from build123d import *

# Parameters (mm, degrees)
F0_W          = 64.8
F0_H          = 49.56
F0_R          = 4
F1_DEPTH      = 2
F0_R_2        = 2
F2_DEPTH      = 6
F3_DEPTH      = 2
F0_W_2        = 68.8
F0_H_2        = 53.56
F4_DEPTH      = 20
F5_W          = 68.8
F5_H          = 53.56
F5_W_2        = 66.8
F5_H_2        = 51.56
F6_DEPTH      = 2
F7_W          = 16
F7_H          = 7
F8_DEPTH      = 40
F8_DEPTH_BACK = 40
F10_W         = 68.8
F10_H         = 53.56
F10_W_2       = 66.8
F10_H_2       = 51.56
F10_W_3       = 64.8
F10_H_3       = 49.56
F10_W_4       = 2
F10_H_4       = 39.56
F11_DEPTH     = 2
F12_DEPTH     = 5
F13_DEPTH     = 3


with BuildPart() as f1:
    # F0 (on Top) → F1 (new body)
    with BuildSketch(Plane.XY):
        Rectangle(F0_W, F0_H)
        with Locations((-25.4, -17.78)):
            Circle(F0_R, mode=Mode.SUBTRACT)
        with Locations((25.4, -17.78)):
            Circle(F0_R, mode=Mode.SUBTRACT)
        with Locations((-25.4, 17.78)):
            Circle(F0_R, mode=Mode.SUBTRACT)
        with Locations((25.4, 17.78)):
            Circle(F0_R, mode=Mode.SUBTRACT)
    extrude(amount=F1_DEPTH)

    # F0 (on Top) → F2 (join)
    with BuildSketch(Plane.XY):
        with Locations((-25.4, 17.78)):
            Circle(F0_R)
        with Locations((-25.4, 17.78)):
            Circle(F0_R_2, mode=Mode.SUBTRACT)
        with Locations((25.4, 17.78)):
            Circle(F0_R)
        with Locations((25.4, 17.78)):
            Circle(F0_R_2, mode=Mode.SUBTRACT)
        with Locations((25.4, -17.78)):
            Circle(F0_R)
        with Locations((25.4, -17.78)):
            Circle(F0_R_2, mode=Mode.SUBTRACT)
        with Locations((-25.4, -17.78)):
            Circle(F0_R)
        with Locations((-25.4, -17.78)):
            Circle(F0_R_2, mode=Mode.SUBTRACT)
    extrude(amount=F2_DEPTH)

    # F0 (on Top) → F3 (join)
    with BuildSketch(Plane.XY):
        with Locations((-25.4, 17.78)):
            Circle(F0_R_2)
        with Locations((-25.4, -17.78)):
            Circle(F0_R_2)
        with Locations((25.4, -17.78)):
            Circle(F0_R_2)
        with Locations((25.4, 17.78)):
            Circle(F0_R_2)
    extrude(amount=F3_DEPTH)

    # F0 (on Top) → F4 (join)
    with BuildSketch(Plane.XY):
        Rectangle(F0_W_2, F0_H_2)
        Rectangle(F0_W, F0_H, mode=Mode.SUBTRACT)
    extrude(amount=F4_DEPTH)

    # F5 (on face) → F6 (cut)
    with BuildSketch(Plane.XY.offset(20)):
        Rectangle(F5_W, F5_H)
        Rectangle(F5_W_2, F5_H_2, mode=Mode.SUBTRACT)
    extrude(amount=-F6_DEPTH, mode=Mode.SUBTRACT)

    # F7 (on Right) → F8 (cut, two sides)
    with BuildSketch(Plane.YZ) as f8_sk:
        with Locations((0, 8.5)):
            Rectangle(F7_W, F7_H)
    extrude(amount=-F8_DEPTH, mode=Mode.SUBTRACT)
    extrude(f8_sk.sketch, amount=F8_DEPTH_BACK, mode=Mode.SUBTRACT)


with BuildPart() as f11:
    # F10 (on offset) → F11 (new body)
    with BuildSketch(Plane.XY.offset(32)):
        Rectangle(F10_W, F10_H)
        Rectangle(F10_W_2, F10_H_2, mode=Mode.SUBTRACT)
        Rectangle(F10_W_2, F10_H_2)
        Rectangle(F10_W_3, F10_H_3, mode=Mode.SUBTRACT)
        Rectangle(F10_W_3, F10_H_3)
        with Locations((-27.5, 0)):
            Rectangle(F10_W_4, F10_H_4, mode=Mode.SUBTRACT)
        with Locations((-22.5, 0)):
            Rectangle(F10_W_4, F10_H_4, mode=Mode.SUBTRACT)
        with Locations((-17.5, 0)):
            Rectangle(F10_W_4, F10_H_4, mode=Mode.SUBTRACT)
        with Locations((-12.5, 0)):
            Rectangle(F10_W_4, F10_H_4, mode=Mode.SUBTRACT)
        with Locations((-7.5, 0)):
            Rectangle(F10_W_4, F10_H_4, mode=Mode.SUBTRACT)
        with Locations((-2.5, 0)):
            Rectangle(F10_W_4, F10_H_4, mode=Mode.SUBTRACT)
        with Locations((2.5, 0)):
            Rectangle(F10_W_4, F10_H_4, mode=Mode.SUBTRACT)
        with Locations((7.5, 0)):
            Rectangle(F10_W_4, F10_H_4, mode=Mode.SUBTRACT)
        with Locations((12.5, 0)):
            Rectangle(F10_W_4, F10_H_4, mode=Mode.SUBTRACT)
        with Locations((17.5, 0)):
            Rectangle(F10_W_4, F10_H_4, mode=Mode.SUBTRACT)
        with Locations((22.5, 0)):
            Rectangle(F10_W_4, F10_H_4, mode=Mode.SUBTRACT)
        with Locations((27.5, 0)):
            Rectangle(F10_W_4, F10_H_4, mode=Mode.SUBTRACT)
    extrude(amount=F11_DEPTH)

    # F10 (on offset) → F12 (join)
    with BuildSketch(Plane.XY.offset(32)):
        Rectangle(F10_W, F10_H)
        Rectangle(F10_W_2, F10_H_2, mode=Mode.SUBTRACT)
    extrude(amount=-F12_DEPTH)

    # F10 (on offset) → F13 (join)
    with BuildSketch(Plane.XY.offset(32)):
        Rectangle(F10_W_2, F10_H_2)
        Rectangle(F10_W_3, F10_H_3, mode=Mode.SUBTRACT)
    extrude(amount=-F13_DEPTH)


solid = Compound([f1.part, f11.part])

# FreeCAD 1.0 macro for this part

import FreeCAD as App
import Part
import Sketcher
from FreeCAD import Vector
Q = App.Units.Quantity


def add_polygon(sketch, points):
    """Adds a closed chain of lines whose ends are joined by coincident constraints."""
    first, n = sketch.GeometryCount, len(points)
    for a, b in zip(points, points[1:] + points[:1]):
        sketch.addGeometry(Part.LineSegment(App.Vector(*a, 0), App.Vector(*b, 0)), False)
    for i in range(n):
        sketch.addConstraint(Sketcher.Constraint("Coincident", first + i, 2, first + (i + 1) % n, 1))

doc = App.newDocument("Part")
body = doc.addObject("PartDesign::Body", "Body")

# Sketch on XY plane
sketch1 = doc.addObject("Sketcher::SketchObject", "Sketch")
body.addObject(sketch1)
sketch1.AttachmentSupport = (doc.XY_Plane, [""])
sketch1.MapMode = "FlatFace"
add_polygon(sketch1, [(-32.4, 24.8), (-32.4, -24.8), (32.4, -24.8), (32.4, 24.8)])  # lines 0-3
sketch1.addGeometry(Part.Circle(Vector(-25.4, -17.8, 0), Vector(0, 0, 1), 4), False)  # 4
sketch1.addGeometry(Part.Circle(Vector(25.4, -17.8, 0), Vector(0, 0, 1), 4), False)  # 5
sketch1.addGeometry(Part.Circle(Vector(-25.4, 17.8, 0), Vector(0, 0, 1), 4), False)  # 6
sketch1.addGeometry(Part.Circle(Vector(25.4, 17.8, 0), Vector(0, 0, 1), 4), False)  # 7
sketch1.addConstraint(Sketcher.Constraint("Vertical", 0))
sketch1.addConstraint(Sketcher.Constraint("Horizontal", 1))
sketch1.addConstraint(Sketcher.Constraint("Vertical", 2))
sketch1.addConstraint(Sketcher.Constraint("Horizontal", 3))
sketch1.addConstraint(Sketcher.Constraint("Equal", 4, 5))
sketch1.addConstraint(Sketcher.Constraint("Equal", 5, 6))
sketch1.addConstraint(Sketcher.Constraint("Equal", 6, 7))
sketch1.addConstraint(Sketcher.Constraint("Symmetric", 5, 3, 6, 3, -1, 1))
sketch1.addConstraint(Sketcher.Constraint("Symmetric", 4, 3, 7, 3, -1, 1))
sketch1.addConstraint(Sketcher.Constraint("Symmetric", 0, 2, 2, 2, -1, 1))
sketch1.addConstraint(Sketcher.Constraint("Symmetric", 4, 3, 5, 3, -2))
sketch1.addConstraint(Sketcher.Constraint("Diameter", 4, Q("8 mm")))
sketch1.addConstraint(Sketcher.Constraint("DistanceX", 1, 1, 1, 2, Q("64.8 mm")))
sketch1.addConstraint(Sketcher.Constraint("DistanceX", 0, 2, 4, 3, Q("7 mm")))
sketch1.addConstraint(Sketcher.Constraint("DistanceY", 0, 2, 4, 3, Q("7 mm")))
sketch1.addConstraint(Sketcher.Constraint("DistanceY", 0, 2, 0, 1, Q("49.56 mm")))
pad1 = doc.addObject("PartDesign::Pad", "Pad")
body.addObject(pad1)
pad1.Profile = sketch1
pad1.Length = 2

# Sketch on XY plane
sketch2 = doc.addObject("Sketcher::SketchObject", "Sketch001")
body.addObject(sketch2)
sketch2.AttachmentSupport = (doc.XY_Plane, [""])
sketch2.MapMode = "FlatFace"
sketch2.addGeometry(Part.Circle(Vector(-25.4, 17.8, 0), Vector(0, 0, 1), 4), False)
sketch2.addGeometry(Part.Circle(Vector(-25.4, 17.8, 0), Vector(0, 0, 1), 2), False)
sketch2.addGeometry(Part.Circle(Vector(25.4, 17.8, 0), Vector(0, 0, 1), 4), False)
sketch2.addGeometry(Part.Circle(Vector(25.4, 17.8, 0), Vector(0, 0, 1), 2), False)
sketch2.addGeometry(Part.Circle(Vector(25.4, -17.8, 0), Vector(0, 0, 1), 4), False)
sketch2.addGeometry(Part.Circle(Vector(25.4, -17.8, 0), Vector(0, 0, 1), 2), False)
sketch2.addGeometry(Part.Circle(Vector(-25.4, -17.8, 0), Vector(0, 0, 1), 4), False)
sketch2.addGeometry(Part.Circle(Vector(-25.4, -17.8, 0), Vector(0, 0, 1), 2), False)
sketch2.addConstraint(Sketcher.Constraint("Coincident", 1, 3, 0, 3))
sketch2.addConstraint(Sketcher.Constraint("Coincident", 3, 3, 2, 3))
sketch2.addConstraint(Sketcher.Constraint("Coincident", 5, 3, 4, 3))
sketch2.addConstraint(Sketcher.Constraint("Coincident", 7, 3, 6, 3))
sketch2.addConstraint(Sketcher.Constraint("Equal", 0, 2))
sketch2.addConstraint(Sketcher.Constraint("Equal", 1, 3))
sketch2.addConstraint(Sketcher.Constraint("Equal", 2, 4))
sketch2.addConstraint(Sketcher.Constraint("Equal", 3, 5))
sketch2.addConstraint(Sketcher.Constraint("Equal", 4, 6))
sketch2.addConstraint(Sketcher.Constraint("Equal", 5, 7))
sketch2.addConstraint(Sketcher.Constraint("Symmetric", 0, 3, 4, 3, -1, 1))
sketch2.addConstraint(Sketcher.Constraint("Symmetric", 2, 3, 6, 3, -1, 1))
sketch2.addConstraint(Sketcher.Constraint("Symmetric", 0, 3, 2, 3, -2))
sketch2.addConstraint(Sketcher.Constraint("Diameter", 0, Q("8 mm")))
sketch2.addConstraint(Sketcher.Constraint("Diameter", 1, Q("4 mm")))
sketch2.addConstraint(Sketcher.Constraint("DistanceX", 0, 3, -1, 1, Q("25.4 mm")))
sketch2.addConstraint(Sketcher.Constraint("DistanceY", -1, 1, 0, 3, Q("17.78 mm")))
pad2 = doc.addObject("PartDesign::Pad", "Pad001")
body.addObject(pad2)
pad2.Profile = sketch2
pad2.Length = 6

# Sketch on XY plane
sketch3 = doc.addObject("Sketcher::SketchObject", "Sketch002")
body.addObject(sketch3)
sketch3.AttachmentSupport = (doc.XY_Plane, [""])
sketch3.MapMode = "FlatFace"
sketch3.addGeometry(Part.Circle(Vector(-25.4, 17.8, 0), Vector(0, 0, 1), 2), False)
sketch3.addGeometry(Part.Circle(Vector(-25.4, -17.8, 0), Vector(0, 0, 1), 2), False)
sketch3.addGeometry(Part.Circle(Vector(25.4, -17.8, 0), Vector(0, 0, 1), 2), False)
sketch3.addGeometry(Part.Circle(Vector(25.4, 17.8, 0), Vector(0, 0, 1), 2), False)
sketch3.addConstraint(Sketcher.Constraint("Equal", 0, 1))
sketch3.addConstraint(Sketcher.Constraint("Equal", 1, 2))
sketch3.addConstraint(Sketcher.Constraint("Equal", 2, 3))
sketch3.addConstraint(Sketcher.Constraint("Symmetric", 0, 3, 2, 3, -1, 1))
sketch3.addConstraint(Sketcher.Constraint("Symmetric", 1, 3, 3, 3, -1, 1))
sketch3.addConstraint(Sketcher.Constraint("Symmetric", 1, 3, 2, 3, -2))
sketch3.addConstraint(Sketcher.Constraint("Diameter", 0, Q("4 mm")))
sketch3.addConstraint(Sketcher.Constraint("DistanceX", 0, 3, -1, 1, Q("25.4 mm")))
sketch3.addConstraint(Sketcher.Constraint("DistanceY", -1, 1, 0, 3, Q("17.78 mm")))
pad3 = doc.addObject("PartDesign::Pad", "Pad002")
body.addObject(pad3)
pad3.Profile = sketch3
pad3.Length = 2

# Sketch on XY plane
sketch4 = doc.addObject("Sketcher::SketchObject", "Sketch003")
body.addObject(sketch4)
sketch4.AttachmentSupport = (doc.XY_Plane, [""])
sketch4.MapMode = "FlatFace"
add_polygon(sketch4, [(-34, 27), (-34, -27), (34, -27), (34, 27)])  # lines 0-3
add_polygon(sketch4, [(32, -25), (-32, -25), (-32, 25), (32, 25)])  # lines 4-7
sketch4.addConstraint(Sketcher.Constraint("Vertical", 0))
sketch4.addConstraint(Sketcher.Constraint("Horizontal", 1))
sketch4.addConstraint(Sketcher.Constraint("Vertical", 2))
sketch4.addConstraint(Sketcher.Constraint("Horizontal", 3))
sketch4.addConstraint(Sketcher.Constraint("Horizontal", 4))
sketch4.addConstraint(Sketcher.Constraint("Vertical", 5))
sketch4.addConstraint(Sketcher.Constraint("Horizontal", 6))
sketch4.addConstraint(Sketcher.Constraint("Vertical", 7))
sketch4.addConstraint(Sketcher.Constraint("Symmetric", 0, 2, 2, 2, -1, 1))
sketch4.addConstraint(Sketcher.Constraint("Symmetric", 4, 2, 6, 2, -1, 1))
sketch4.addConstraint(Sketcher.Constraint("DistanceX", 1, 1, 1, 2, Q("68.8 mm")))
sketch4.addConstraint(Sketcher.Constraint("DistanceX", 4, 2, 4, 1, Q("64.8 mm")))
sketch4.addConstraint(Sketcher.Constraint("DistanceY", 0, 2, 4, 2, Q("2 mm")))
sketch4.addConstraint(Sketcher.Constraint("DistanceY", 0, 2, 0, 1, Q("53.56 mm")))
pad4 = doc.addObject("PartDesign::Pad", "Pad003")
body.addObject(pad4)
pad4.Profile = sketch4
pad4.Length = 20

# Sketch on XY plane
sketch5 = doc.addObject("Sketcher::SketchObject", "Sketch004")
body.addObject(sketch5)
sketch5.AttachmentSupport = (doc.XY_Plane, [""])
sketch5.MapMode = "FlatFace"
sketch5.AttachmentOffset = App.Placement(Vector(0, 0, 20), App.Rotation())
add_polygon(sketch5, [(-34, 27), (-34, -27), (34, -27), (34, 27)])  # lines 0-3
add_polygon(sketch5, [(33, -26), (-33, -26), (-33, 26), (33, 26)])  # lines 4-7
sketch5.addConstraint(Sketcher.Constraint("Vertical", 0))
sketch5.addConstraint(Sketcher.Constraint("Horizontal", 1))
sketch5.addConstraint(Sketcher.Constraint("Vertical", 2))
sketch5.addConstraint(Sketcher.Constraint("Horizontal", 3))
sketch5.addConstraint(Sketcher.Constraint("Horizontal", 4))
sketch5.addConstraint(Sketcher.Constraint("Vertical", 5))
sketch5.addConstraint(Sketcher.Constraint("Horizontal", 6))
sketch5.addConstraint(Sketcher.Constraint("Vertical", 7))
sketch5.addConstraint(Sketcher.Constraint("Symmetric", 0, 2, 2, 2, -1, 1))
sketch5.addConstraint(Sketcher.Constraint("Symmetric", 4, 2, 6, 2, -1, 1))
sketch5.addConstraint(Sketcher.Constraint("DistanceX", 1, 1, 1, 2, Q("68.8 mm")))
sketch5.addConstraint(Sketcher.Constraint("DistanceX", 4, 2, 4, 1, Q("66.8 mm")))
sketch5.addConstraint(Sketcher.Constraint("DistanceY", 0, 2, 4, 2, Q("1 mm")))
sketch5.addConstraint(Sketcher.Constraint("DistanceY", 0, 2, 0, 1, Q("53.56 mm")))
pocket1 = doc.addObject("PartDesign::Pocket", "Pocket")
body.addObject(pocket1)
pocket1.Profile = sketch5
pocket1.Length = 2

# Sketch on YZ plane
sketch6 = doc.addObject("Sketcher::SketchObject", "Sketch005")
body.addObject(sketch6)
sketch6.AttachmentSupport = (doc.YZ_Plane, [""])
sketch6.MapMode = "FlatFace"
add_polygon(sketch6, [(-8, 12), (-8, 5), (8, 5), (8, 12)])  # lines 0-3
sketch6.addConstraint(Sketcher.Constraint("Vertical", 0))
sketch6.addConstraint(Sketcher.Constraint("Horizontal", 1))
sketch6.addConstraint(Sketcher.Constraint("Vertical", 2))
sketch6.addConstraint(Sketcher.Constraint("Horizontal", 3))
sketch6.addConstraint(Sketcher.Constraint("DistanceX", 1, 1, 1, 2, Q("16 mm")))
sketch6.addConstraint(Sketcher.Constraint("DistanceY", 0, 2, 0, 1, Q("7 mm")))
sketch6.addConstraint(Sketcher.Constraint("DistanceX", 0, 2, -1, 1, Q("8 mm")))
sketch6.addConstraint(Sketcher.Constraint("DistanceY", -1, 1, 0, 2, Q("5 mm")))
pocket2 = doc.addObject("PartDesign::Pocket", "Pocket001")
body.addObject(pocket2)
pocket2.Profile = sketch6
pocket2.Type = "ThroughAll"
pocket2.Midplane = True
body2 = doc.addObject("PartDesign::Body", "Body001")

# Sketch on XY plane
sketch7 = doc.addObject("Sketcher::SketchObject", "Sketch006")
body2.addObject(sketch7)
sketch7.AttachmentSupport = (doc.getObject("XY_Plane001"), [""])
sketch7.MapMode = "FlatFace"
sketch7.AttachmentOffset = App.Placement(Vector(0, 0, 32), App.Rotation())
add_polygon(sketch7, [(-34.4, 26.8), (-34.4, -26.8), (34.4, -26.8), (34.4, 26.8)])  # lines 0-3
add_polygon(sketch7, [(-26.5, -19.8), (-28.5, -19.8), (-28.5, 19.8), (-26.5, 19.8)])  # lines 4-7
add_polygon(sketch7, [(-21.5, -19.8), (-23.5, -19.8), (-23.5, 19.8), (-21.5, 19.8)])  # lines 8-11
add_polygon(sketch7, [(-16.5, -19.8), (-18.5, -19.8), (-18.5, 19.8), (-16.5, 19.8)])  # lines 12-15
add_polygon(sketch7, [(-11.5, -19.8), (-13.5, -19.8), (-13.5, 19.8), (-11.5, 19.8)])  # lines 16-19
add_polygon(sketch7, [(-6.5, -19.8), (-8.5, -19.8), (-8.5, 19.8), (-6.5, 19.8)])  # lines 20-23
add_polygon(sketch7, [(-1.5, -19.8), (-3.5, -19.8), (-3.5, 19.8), (-1.5, 19.8)])  # lines 24-27
add_polygon(sketch7, [(3.5, -19.8), (1.5, -19.8), (1.5, 19.8), (3.5, 19.8)])  # lines 28-31
add_polygon(sketch7, [(8.5, -19.8), (6.5, -19.8), (6.5, 19.8), (8.5, 19.8)])  # lines 32-35
add_polygon(sketch7, [(13.5, -19.8), (11.5, -19.8), (11.5, 19.8), (13.5, 19.8)])  # lines 36-39
add_polygon(sketch7, [(18.5, -19.8), (16.5, -19.8), (16.5, 19.8), (18.5, 19.8)])  # lines 40-43
add_polygon(sketch7, [(23.5, -19.8), (21.5, -19.8), (21.5, 19.8), (23.5, 19.8)])  # lines 44-47
add_polygon(sketch7, [(28.5, -19.8), (26.5, -19.8), (26.5, 19.8), (28.5, 19.8)])  # lines 48-51
sketch7.addConstraint(Sketcher.Constraint("Vertical", 0))
sketch7.addConstraint(Sketcher.Constraint("Horizontal", 1))
sketch7.addConstraint(Sketcher.Constraint("Vertical", 2))
sketch7.addConstraint(Sketcher.Constraint("Horizontal", 3))
sketch7.addConstraint(Sketcher.Constraint("Horizontal", 4))
sketch7.addConstraint(Sketcher.Constraint("Vertical", 5))
sketch7.addConstraint(Sketcher.Constraint("Horizontal", 6))
sketch7.addConstraint(Sketcher.Constraint("Vertical", 7))
sketch7.addConstraint(Sketcher.Constraint("Horizontal", 8))
sketch7.addConstraint(Sketcher.Constraint("Vertical", 9))
sketch7.addConstraint(Sketcher.Constraint("Horizontal", 10))
sketch7.addConstraint(Sketcher.Constraint("Vertical", 11))
sketch7.addConstraint(Sketcher.Constraint("Horizontal", 12))
sketch7.addConstraint(Sketcher.Constraint("Vertical", 13))
sketch7.addConstraint(Sketcher.Constraint("Horizontal", 14))
sketch7.addConstraint(Sketcher.Constraint("Vertical", 15))
sketch7.addConstraint(Sketcher.Constraint("Horizontal", 16))
sketch7.addConstraint(Sketcher.Constraint("Vertical", 17))
sketch7.addConstraint(Sketcher.Constraint("Horizontal", 18))
sketch7.addConstraint(Sketcher.Constraint("Vertical", 19))
sketch7.addConstraint(Sketcher.Constraint("Horizontal", 20))
sketch7.addConstraint(Sketcher.Constraint("Vertical", 21))
sketch7.addConstraint(Sketcher.Constraint("Horizontal", 22))
sketch7.addConstraint(Sketcher.Constraint("Vertical", 23))
sketch7.addConstraint(Sketcher.Constraint("Horizontal", 24))
sketch7.addConstraint(Sketcher.Constraint("Vertical", 25))
sketch7.addConstraint(Sketcher.Constraint("Horizontal", 26))
sketch7.addConstraint(Sketcher.Constraint("Vertical", 27))
sketch7.addConstraint(Sketcher.Constraint("Horizontal", 28))
sketch7.addConstraint(Sketcher.Constraint("Vertical", 29))
sketch7.addConstraint(Sketcher.Constraint("Horizontal", 30))
sketch7.addConstraint(Sketcher.Constraint("Vertical", 31))
sketch7.addConstraint(Sketcher.Constraint("Horizontal", 32))
sketch7.addConstraint(Sketcher.Constraint("Vertical", 33))
sketch7.addConstraint(Sketcher.Constraint("Horizontal", 34))
sketch7.addConstraint(Sketcher.Constraint("Vertical", 35))
sketch7.addConstraint(Sketcher.Constraint("Horizontal", 36))
sketch7.addConstraint(Sketcher.Constraint("Vertical", 37))
sketch7.addConstraint(Sketcher.Constraint("Horizontal", 38))
sketch7.addConstraint(Sketcher.Constraint("Vertical", 39))
sketch7.addConstraint(Sketcher.Constraint("Horizontal", 40))
sketch7.addConstraint(Sketcher.Constraint("Vertical", 41))
sketch7.addConstraint(Sketcher.Constraint("Horizontal", 42))
sketch7.addConstraint(Sketcher.Constraint("Vertical", 43))
sketch7.addConstraint(Sketcher.Constraint("Horizontal", 44))
sketch7.addConstraint(Sketcher.Constraint("Vertical", 45))
sketch7.addConstraint(Sketcher.Constraint("Horizontal", 46))
sketch7.addConstraint(Sketcher.Constraint("Vertical", 47))
sketch7.addConstraint(Sketcher.Constraint("Horizontal", 48))
sketch7.addConstraint(Sketcher.Constraint("Vertical", 49))
sketch7.addConstraint(Sketcher.Constraint("Horizontal", 50))
sketch7.addConstraint(Sketcher.Constraint("Vertical", 51))
sketch7.addConstraint(Sketcher.Constraint("Symmetric", 0, 2, 2, 2, -1, 1))
sketch7.addConstraint(Sketcher.Constraint("Symmetric", 26, 2, 28, 2, -1, 1))
sketch7.addConstraint(Sketcher.Constraint("Symmetric", 24, 2, 30, 2, -1, 1))
sketch7.addConstraint(Sketcher.Constraint("Symmetric", 22, 2, 32, 2, -1, 1))
sketch7.addConstraint(Sketcher.Constraint("Symmetric", 20, 2, 34, 2, -1, 1))
sketch7.addConstraint(Sketcher.Constraint("Symmetric", 18, 2, 36, 2, -1, 1))
sketch7.addConstraint(Sketcher.Constraint("Symmetric", 16, 2, 38, 2, -1, 1))
sketch7.addConstraint(Sketcher.Constraint("Symmetric", 14, 2, 40, 2, -1, 1))
sketch7.addConstraint(Sketcher.Constraint("Symmetric", 12, 2, 42, 2, -1, 1))
sketch7.addConstraint(Sketcher.Constraint("Symmetric", 10, 2, 44, 2, -1, 1))
sketch7.addConstraint(Sketcher.Constraint("Symmetric", 8, 2, 46, 2, -1, 1))
sketch7.addConstraint(Sketcher.Constraint("Symmetric", 6, 2, 48, 2, -1, 1))
sketch7.addConstraint(Sketcher.Constraint("Symmetric", 4, 2, 50, 2, -1, 1))
sketch7.addConstraint(Sketcher.Constraint("Horizontal", 7, 2, 8, 2))
sketch7.addConstraint(Sketcher.Constraint("Horizontal", 6, 2, 9, 2))
sketch7.addConstraint(Sketcher.Constraint("Horizontal", 11, 2, 12, 2))
sketch7.addConstraint(Sketcher.Constraint("Horizontal", 10, 2, 13, 2))
sketch7.addConstraint(Sketcher.Constraint("Horizontal", 15, 2, 16, 2))
sketch7.addConstraint(Sketcher.Constraint("Horizontal", 14, 2, 17, 2))
sketch7.addConstraint(Sketcher.Constraint("Horizontal", 19, 2, 20, 2))
sketch7.addConstraint(Sketcher.Constraint("Horizontal", 18, 2, 21, 2))
sketch7.addConstraint(Sketcher.Constraint("Horizontal", 23, 2, 24, 2))
sketch7.addConstraint(Sketcher.Constraint("Horizontal", 22, 2, 25, 2))
sketch7.addConstraint(Sketcher.Constraint("Horizontal", 27, 2, 28, 2))
sketch7.addConstraint(Sketcher.Constraint("Equal", 6, 8))
sketch7.addConstraint(Sketcher.Constraint("Equal", 10, 12))
sketch7.addConstraint(Sketcher.Constraint("Equal", 14, 16))
sketch7.addConstraint(Sketcher.Constraint("Equal", 18, 20))
sketch7.addConstraint(Sketcher.Constraint("Equal", 22, 24))
sketch7.addConstraint(Sketcher.Constraint("DistanceX", 4, 2, 4, 1, Q("2 mm")))
sketch7.addConstraint(Sketcher.Constraint("DistanceX", 1, 1, 1, 2, Q("68.8 mm")))
sketch7.addConstraint(Sketcher.Constraint("DistanceY", 0, 2, 4, 2, Q("7 mm")))
sketch7.addConstraint(Sketcher.Constraint("DistanceX", 7, 2, 8, 2, Q("3 mm")))
sketch7.addConstraint(Sketcher.Constraint("DistanceX", 11, 2, 12, 2, Q("3 mm")))
sketch7.addConstraint(Sketcher.Constraint("DistanceX", 15, 2, 16, 2, Q("3 mm")))
sketch7.addConstraint(Sketcher.Constraint("DistanceX", 19, 2, 20, 2, Q("3 mm")))
sketch7.addConstraint(Sketcher.Constraint("DistanceX", 23, 2, 24, 2, Q("3 mm")))
sketch7.addConstraint(Sketcher.Constraint("DistanceX", 27, 2, 28, 2, Q("3 mm")))
sketch7.addConstraint(Sketcher.Constraint("DistanceY", 0, 2, 0, 1, Q("53.56 mm")))
pad5 = doc.addObject("PartDesign::Pad", "Pad004")
body2.addObject(pad5)
pad5.Profile = sketch7
pad5.Length = 2

# Sketch on XY plane
sketch8 = doc.addObject("Sketcher::SketchObject", "Sketch007")
body2.addObject(sketch8)
sketch8.AttachmentSupport = (doc.getObject("XY_Plane001"), [""])
sketch8.MapMode = "FlatFace"
sketch8.AttachmentOffset = App.Placement(Vector(0, 0, 32), App.Rotation())
add_polygon(sketch8, [(-34, 27), (-34, -27), (34, -27), (34, 27)])  # lines 0-3
add_polygon(sketch8, [(33, -26), (-33, -26), (-33, 26), (33, 26)])  # lines 4-7
sketch8.addConstraint(Sketcher.Constraint("Vertical", 0))
sketch8.addConstraint(Sketcher.Constraint("Horizontal", 1))
sketch8.addConstraint(Sketcher.Constraint("Vertical", 2))
sketch8.addConstraint(Sketcher.Constraint("Horizontal", 3))
sketch8.addConstraint(Sketcher.Constraint("Horizontal", 4))
sketch8.addConstraint(Sketcher.Constraint("Vertical", 5))
sketch8.addConstraint(Sketcher.Constraint("Horizontal", 6))
sketch8.addConstraint(Sketcher.Constraint("Vertical", 7))
sketch8.addConstraint(Sketcher.Constraint("Symmetric", 0, 2, 2, 2, -1, 1))
sketch8.addConstraint(Sketcher.Constraint("Symmetric", 4, 2, 6, 2, -1, 1))
sketch8.addConstraint(Sketcher.Constraint("DistanceX", 1, 1, 1, 2, Q("68.8 mm")))
sketch8.addConstraint(Sketcher.Constraint("DistanceX", 4, 2, 4, 1, Q("66.8 mm")))
sketch8.addConstraint(Sketcher.Constraint("DistanceY", 0, 2, 4, 2, Q("1 mm")))
sketch8.addConstraint(Sketcher.Constraint("DistanceY", 0, 2, 0, 1, Q("53.56 mm")))
pad6 = doc.addObject("PartDesign::Pad", "Pad005")
body2.addObject(pad6)
pad6.Profile = sketch8
pad6.Length = 5
pad6.Reversed = True

# Sketch on XY plane
sketch9 = doc.addObject("Sketcher::SketchObject", "Sketch008")
body2.addObject(sketch9)
sketch9.AttachmentSupport = (doc.getObject("XY_Plane001"), [""])
sketch9.MapMode = "FlatFace"
sketch9.AttachmentOffset = App.Placement(Vector(0, 0, 32), App.Rotation())
add_polygon(sketch9, [(-33, 26), (-33, -26), (33, -26), (33, 26)])  # lines 0-3
add_polygon(sketch9, [(32, -25), (-32, -25), (-32, 25), (32, 25)])  # lines 4-7
sketch9.addConstraint(Sketcher.Constraint("Vertical", 0))
sketch9.addConstraint(Sketcher.Constraint("Horizontal", 1))
sketch9.addConstraint(Sketcher.Constraint("Vertical", 2))
sketch9.addConstraint(Sketcher.Constraint("Horizontal", 3))
sketch9.addConstraint(Sketcher.Constraint("Horizontal", 4))
sketch9.addConstraint(Sketcher.Constraint("Vertical", 5))
sketch9.addConstraint(Sketcher.Constraint("Horizontal", 6))
sketch9.addConstraint(Sketcher.Constraint("Vertical", 7))
sketch9.addConstraint(Sketcher.Constraint("Symmetric", 0, 2, 2, 2, -1, 1))
sketch9.addConstraint(Sketcher.Constraint("Symmetric", 4, 2, 6, 2, -1, 1))
sketch9.addConstraint(Sketcher.Constraint("DistanceX", 1, 1, 1, 2, Q("66.8 mm")))
sketch9.addConstraint(Sketcher.Constraint("DistanceX", 4, 2, 4, 1, Q("64.8 mm")))
sketch9.addConstraint(Sketcher.Constraint("DistanceY", 0, 2, 4, 2, Q("1 mm")))
sketch9.addConstraint(Sketcher.Constraint("DistanceY", 0, 2, 0, 1, Q("51.56 mm")))
pad7 = doc.addObject("PartDesign::Pad", "Pad006")
body2.addObject(pad7)
pad7.Profile = sketch9
pad7.Length = 3
pad7.Reversed = True

doc.recompute()
